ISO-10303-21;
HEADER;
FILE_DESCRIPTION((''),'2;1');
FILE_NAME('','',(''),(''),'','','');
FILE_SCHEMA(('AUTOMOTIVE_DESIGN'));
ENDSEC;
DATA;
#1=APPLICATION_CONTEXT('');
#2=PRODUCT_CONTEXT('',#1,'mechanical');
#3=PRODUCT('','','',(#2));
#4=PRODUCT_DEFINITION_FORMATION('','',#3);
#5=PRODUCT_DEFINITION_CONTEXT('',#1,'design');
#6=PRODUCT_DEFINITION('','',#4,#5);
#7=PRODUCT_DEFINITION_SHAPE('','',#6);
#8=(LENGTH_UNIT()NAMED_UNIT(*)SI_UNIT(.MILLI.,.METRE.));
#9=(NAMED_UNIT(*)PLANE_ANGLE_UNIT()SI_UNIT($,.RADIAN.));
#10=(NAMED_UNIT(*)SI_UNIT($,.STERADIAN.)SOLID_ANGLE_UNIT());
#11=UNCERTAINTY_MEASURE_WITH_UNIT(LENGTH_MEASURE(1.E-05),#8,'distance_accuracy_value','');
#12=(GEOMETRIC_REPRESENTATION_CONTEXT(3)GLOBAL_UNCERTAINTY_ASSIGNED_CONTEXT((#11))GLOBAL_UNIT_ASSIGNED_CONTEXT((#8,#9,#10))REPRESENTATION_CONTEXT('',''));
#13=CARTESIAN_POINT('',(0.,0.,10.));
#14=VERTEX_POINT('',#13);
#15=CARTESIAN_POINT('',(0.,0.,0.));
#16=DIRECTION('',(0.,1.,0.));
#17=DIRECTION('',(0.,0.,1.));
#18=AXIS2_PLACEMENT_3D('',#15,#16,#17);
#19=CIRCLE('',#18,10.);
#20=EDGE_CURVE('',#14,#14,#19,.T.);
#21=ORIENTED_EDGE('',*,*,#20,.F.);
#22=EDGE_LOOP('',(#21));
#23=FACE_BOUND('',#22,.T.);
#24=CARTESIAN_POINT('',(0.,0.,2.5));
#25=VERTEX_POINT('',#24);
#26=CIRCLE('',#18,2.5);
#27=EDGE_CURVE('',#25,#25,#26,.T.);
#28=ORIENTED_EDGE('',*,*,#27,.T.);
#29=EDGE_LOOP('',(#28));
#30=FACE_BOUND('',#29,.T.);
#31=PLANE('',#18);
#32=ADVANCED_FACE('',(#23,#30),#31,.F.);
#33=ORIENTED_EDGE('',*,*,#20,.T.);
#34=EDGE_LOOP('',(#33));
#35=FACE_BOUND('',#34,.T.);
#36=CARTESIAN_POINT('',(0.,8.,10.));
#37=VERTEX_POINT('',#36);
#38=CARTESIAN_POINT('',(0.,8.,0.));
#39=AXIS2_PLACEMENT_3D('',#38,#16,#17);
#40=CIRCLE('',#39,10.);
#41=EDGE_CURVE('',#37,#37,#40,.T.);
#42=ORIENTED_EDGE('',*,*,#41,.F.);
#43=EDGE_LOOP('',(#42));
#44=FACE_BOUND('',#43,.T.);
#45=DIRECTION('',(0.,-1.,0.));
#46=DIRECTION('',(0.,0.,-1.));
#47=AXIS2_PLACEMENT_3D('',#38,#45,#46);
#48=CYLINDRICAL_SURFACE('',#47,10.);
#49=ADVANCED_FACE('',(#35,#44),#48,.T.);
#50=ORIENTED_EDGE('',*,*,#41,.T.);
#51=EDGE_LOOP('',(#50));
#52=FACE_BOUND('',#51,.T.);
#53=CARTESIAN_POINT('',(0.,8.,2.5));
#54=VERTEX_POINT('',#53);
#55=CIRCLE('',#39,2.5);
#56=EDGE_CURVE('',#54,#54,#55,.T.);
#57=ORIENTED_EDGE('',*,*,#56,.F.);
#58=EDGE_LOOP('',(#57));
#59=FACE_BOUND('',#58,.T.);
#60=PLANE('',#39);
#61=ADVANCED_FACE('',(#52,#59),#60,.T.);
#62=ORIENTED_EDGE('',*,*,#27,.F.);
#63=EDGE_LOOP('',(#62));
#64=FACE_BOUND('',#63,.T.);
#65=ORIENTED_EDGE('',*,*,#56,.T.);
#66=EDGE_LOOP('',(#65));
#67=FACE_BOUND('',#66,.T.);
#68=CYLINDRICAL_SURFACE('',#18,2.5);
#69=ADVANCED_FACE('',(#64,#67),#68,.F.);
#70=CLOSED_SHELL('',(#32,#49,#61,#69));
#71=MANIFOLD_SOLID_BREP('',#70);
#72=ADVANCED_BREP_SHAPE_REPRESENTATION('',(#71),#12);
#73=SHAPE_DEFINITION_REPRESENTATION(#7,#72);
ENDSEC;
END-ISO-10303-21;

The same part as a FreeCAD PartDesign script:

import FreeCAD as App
import Part
import Sketcher
from FreeCAD import Vector
Q = App.Units.Quantity

doc = App.newDocument("Part")
params = doc.addObject("Spreadsheet::Sheet", "Params")
for row, (alias, value) in enumerate([
    ("sketch1_diameter", "20 mm"),
    ("pad1_length", "8 mm"),
    ("sketch2_diameter", "5 mm"),
    ("pocket1_length", "8 mm"),
], start=1):
    params.set(f"A{row}", alias)
    params.set(f"B{row}", "=" + value)
    params.setAlias(f"B{row}", alias)

body = doc.addObject("PartDesign::Body", "Body")

# Sketch on XZ plane
sketch1 = body.newObject("Sketcher::SketchObject", "Sketch")
sketch1.AttachmentSupport = (doc.getObject("XZ_Plane"), [""])
sketch1.MapMode = "FlatFace"
sketch1.addGeometry(Part.Circle(Vector(0, 0, 0), Vector(0, 0, 1), 10), False)
sketch1.addConstraint([
    Sketcher.Constraint("Coincident", 0, 3, -1, 1),
    Sketcher.Constraint("Diameter", 0, Q("20 mm")),
])
sketch1.setExpression("Constraints[1]", "Params.sketch1_diameter")
pad1 = body.newObject("PartDesign::Pad", "Pad")
pad1.Profile = sketch1
pad1.setExpression("Length", "Params.pad1_length")
pad1.Reversed = True

# Sketch on XZ plane
sketch2 = body.newObject("Sketcher::SketchObject", "Sketch001")
sketch2.AttachmentSupport = (doc.getObject("XZ_Plane"), [""])
sketch2.MapMode = "FlatFace"
sketch2.AttachmentOffset = App.Placement(Vector(0, 0, -8), App.Rotation())
sketch2.addGeometry(Part.Circle(Vector(0, 0, 0), Vector(0, 0, 1), 2.5), False)
sketch2.addConstraint([
    Sketcher.Constraint("Coincident", 0, 3, -1, 1),
    Sketcher.Constraint("Diameter", 0, Q("5 mm")),
])
sketch2.setExpression("Constraints[1]", "Params.sketch2_diameter")
pocket1 = body.newObject("PartDesign::Pocket", "Pocket")
pocket1.Profile = sketch2
pocket1.setExpression("Length", "Params.pocket1_length")
pocket1.Reversed = True

doc.recompute()
